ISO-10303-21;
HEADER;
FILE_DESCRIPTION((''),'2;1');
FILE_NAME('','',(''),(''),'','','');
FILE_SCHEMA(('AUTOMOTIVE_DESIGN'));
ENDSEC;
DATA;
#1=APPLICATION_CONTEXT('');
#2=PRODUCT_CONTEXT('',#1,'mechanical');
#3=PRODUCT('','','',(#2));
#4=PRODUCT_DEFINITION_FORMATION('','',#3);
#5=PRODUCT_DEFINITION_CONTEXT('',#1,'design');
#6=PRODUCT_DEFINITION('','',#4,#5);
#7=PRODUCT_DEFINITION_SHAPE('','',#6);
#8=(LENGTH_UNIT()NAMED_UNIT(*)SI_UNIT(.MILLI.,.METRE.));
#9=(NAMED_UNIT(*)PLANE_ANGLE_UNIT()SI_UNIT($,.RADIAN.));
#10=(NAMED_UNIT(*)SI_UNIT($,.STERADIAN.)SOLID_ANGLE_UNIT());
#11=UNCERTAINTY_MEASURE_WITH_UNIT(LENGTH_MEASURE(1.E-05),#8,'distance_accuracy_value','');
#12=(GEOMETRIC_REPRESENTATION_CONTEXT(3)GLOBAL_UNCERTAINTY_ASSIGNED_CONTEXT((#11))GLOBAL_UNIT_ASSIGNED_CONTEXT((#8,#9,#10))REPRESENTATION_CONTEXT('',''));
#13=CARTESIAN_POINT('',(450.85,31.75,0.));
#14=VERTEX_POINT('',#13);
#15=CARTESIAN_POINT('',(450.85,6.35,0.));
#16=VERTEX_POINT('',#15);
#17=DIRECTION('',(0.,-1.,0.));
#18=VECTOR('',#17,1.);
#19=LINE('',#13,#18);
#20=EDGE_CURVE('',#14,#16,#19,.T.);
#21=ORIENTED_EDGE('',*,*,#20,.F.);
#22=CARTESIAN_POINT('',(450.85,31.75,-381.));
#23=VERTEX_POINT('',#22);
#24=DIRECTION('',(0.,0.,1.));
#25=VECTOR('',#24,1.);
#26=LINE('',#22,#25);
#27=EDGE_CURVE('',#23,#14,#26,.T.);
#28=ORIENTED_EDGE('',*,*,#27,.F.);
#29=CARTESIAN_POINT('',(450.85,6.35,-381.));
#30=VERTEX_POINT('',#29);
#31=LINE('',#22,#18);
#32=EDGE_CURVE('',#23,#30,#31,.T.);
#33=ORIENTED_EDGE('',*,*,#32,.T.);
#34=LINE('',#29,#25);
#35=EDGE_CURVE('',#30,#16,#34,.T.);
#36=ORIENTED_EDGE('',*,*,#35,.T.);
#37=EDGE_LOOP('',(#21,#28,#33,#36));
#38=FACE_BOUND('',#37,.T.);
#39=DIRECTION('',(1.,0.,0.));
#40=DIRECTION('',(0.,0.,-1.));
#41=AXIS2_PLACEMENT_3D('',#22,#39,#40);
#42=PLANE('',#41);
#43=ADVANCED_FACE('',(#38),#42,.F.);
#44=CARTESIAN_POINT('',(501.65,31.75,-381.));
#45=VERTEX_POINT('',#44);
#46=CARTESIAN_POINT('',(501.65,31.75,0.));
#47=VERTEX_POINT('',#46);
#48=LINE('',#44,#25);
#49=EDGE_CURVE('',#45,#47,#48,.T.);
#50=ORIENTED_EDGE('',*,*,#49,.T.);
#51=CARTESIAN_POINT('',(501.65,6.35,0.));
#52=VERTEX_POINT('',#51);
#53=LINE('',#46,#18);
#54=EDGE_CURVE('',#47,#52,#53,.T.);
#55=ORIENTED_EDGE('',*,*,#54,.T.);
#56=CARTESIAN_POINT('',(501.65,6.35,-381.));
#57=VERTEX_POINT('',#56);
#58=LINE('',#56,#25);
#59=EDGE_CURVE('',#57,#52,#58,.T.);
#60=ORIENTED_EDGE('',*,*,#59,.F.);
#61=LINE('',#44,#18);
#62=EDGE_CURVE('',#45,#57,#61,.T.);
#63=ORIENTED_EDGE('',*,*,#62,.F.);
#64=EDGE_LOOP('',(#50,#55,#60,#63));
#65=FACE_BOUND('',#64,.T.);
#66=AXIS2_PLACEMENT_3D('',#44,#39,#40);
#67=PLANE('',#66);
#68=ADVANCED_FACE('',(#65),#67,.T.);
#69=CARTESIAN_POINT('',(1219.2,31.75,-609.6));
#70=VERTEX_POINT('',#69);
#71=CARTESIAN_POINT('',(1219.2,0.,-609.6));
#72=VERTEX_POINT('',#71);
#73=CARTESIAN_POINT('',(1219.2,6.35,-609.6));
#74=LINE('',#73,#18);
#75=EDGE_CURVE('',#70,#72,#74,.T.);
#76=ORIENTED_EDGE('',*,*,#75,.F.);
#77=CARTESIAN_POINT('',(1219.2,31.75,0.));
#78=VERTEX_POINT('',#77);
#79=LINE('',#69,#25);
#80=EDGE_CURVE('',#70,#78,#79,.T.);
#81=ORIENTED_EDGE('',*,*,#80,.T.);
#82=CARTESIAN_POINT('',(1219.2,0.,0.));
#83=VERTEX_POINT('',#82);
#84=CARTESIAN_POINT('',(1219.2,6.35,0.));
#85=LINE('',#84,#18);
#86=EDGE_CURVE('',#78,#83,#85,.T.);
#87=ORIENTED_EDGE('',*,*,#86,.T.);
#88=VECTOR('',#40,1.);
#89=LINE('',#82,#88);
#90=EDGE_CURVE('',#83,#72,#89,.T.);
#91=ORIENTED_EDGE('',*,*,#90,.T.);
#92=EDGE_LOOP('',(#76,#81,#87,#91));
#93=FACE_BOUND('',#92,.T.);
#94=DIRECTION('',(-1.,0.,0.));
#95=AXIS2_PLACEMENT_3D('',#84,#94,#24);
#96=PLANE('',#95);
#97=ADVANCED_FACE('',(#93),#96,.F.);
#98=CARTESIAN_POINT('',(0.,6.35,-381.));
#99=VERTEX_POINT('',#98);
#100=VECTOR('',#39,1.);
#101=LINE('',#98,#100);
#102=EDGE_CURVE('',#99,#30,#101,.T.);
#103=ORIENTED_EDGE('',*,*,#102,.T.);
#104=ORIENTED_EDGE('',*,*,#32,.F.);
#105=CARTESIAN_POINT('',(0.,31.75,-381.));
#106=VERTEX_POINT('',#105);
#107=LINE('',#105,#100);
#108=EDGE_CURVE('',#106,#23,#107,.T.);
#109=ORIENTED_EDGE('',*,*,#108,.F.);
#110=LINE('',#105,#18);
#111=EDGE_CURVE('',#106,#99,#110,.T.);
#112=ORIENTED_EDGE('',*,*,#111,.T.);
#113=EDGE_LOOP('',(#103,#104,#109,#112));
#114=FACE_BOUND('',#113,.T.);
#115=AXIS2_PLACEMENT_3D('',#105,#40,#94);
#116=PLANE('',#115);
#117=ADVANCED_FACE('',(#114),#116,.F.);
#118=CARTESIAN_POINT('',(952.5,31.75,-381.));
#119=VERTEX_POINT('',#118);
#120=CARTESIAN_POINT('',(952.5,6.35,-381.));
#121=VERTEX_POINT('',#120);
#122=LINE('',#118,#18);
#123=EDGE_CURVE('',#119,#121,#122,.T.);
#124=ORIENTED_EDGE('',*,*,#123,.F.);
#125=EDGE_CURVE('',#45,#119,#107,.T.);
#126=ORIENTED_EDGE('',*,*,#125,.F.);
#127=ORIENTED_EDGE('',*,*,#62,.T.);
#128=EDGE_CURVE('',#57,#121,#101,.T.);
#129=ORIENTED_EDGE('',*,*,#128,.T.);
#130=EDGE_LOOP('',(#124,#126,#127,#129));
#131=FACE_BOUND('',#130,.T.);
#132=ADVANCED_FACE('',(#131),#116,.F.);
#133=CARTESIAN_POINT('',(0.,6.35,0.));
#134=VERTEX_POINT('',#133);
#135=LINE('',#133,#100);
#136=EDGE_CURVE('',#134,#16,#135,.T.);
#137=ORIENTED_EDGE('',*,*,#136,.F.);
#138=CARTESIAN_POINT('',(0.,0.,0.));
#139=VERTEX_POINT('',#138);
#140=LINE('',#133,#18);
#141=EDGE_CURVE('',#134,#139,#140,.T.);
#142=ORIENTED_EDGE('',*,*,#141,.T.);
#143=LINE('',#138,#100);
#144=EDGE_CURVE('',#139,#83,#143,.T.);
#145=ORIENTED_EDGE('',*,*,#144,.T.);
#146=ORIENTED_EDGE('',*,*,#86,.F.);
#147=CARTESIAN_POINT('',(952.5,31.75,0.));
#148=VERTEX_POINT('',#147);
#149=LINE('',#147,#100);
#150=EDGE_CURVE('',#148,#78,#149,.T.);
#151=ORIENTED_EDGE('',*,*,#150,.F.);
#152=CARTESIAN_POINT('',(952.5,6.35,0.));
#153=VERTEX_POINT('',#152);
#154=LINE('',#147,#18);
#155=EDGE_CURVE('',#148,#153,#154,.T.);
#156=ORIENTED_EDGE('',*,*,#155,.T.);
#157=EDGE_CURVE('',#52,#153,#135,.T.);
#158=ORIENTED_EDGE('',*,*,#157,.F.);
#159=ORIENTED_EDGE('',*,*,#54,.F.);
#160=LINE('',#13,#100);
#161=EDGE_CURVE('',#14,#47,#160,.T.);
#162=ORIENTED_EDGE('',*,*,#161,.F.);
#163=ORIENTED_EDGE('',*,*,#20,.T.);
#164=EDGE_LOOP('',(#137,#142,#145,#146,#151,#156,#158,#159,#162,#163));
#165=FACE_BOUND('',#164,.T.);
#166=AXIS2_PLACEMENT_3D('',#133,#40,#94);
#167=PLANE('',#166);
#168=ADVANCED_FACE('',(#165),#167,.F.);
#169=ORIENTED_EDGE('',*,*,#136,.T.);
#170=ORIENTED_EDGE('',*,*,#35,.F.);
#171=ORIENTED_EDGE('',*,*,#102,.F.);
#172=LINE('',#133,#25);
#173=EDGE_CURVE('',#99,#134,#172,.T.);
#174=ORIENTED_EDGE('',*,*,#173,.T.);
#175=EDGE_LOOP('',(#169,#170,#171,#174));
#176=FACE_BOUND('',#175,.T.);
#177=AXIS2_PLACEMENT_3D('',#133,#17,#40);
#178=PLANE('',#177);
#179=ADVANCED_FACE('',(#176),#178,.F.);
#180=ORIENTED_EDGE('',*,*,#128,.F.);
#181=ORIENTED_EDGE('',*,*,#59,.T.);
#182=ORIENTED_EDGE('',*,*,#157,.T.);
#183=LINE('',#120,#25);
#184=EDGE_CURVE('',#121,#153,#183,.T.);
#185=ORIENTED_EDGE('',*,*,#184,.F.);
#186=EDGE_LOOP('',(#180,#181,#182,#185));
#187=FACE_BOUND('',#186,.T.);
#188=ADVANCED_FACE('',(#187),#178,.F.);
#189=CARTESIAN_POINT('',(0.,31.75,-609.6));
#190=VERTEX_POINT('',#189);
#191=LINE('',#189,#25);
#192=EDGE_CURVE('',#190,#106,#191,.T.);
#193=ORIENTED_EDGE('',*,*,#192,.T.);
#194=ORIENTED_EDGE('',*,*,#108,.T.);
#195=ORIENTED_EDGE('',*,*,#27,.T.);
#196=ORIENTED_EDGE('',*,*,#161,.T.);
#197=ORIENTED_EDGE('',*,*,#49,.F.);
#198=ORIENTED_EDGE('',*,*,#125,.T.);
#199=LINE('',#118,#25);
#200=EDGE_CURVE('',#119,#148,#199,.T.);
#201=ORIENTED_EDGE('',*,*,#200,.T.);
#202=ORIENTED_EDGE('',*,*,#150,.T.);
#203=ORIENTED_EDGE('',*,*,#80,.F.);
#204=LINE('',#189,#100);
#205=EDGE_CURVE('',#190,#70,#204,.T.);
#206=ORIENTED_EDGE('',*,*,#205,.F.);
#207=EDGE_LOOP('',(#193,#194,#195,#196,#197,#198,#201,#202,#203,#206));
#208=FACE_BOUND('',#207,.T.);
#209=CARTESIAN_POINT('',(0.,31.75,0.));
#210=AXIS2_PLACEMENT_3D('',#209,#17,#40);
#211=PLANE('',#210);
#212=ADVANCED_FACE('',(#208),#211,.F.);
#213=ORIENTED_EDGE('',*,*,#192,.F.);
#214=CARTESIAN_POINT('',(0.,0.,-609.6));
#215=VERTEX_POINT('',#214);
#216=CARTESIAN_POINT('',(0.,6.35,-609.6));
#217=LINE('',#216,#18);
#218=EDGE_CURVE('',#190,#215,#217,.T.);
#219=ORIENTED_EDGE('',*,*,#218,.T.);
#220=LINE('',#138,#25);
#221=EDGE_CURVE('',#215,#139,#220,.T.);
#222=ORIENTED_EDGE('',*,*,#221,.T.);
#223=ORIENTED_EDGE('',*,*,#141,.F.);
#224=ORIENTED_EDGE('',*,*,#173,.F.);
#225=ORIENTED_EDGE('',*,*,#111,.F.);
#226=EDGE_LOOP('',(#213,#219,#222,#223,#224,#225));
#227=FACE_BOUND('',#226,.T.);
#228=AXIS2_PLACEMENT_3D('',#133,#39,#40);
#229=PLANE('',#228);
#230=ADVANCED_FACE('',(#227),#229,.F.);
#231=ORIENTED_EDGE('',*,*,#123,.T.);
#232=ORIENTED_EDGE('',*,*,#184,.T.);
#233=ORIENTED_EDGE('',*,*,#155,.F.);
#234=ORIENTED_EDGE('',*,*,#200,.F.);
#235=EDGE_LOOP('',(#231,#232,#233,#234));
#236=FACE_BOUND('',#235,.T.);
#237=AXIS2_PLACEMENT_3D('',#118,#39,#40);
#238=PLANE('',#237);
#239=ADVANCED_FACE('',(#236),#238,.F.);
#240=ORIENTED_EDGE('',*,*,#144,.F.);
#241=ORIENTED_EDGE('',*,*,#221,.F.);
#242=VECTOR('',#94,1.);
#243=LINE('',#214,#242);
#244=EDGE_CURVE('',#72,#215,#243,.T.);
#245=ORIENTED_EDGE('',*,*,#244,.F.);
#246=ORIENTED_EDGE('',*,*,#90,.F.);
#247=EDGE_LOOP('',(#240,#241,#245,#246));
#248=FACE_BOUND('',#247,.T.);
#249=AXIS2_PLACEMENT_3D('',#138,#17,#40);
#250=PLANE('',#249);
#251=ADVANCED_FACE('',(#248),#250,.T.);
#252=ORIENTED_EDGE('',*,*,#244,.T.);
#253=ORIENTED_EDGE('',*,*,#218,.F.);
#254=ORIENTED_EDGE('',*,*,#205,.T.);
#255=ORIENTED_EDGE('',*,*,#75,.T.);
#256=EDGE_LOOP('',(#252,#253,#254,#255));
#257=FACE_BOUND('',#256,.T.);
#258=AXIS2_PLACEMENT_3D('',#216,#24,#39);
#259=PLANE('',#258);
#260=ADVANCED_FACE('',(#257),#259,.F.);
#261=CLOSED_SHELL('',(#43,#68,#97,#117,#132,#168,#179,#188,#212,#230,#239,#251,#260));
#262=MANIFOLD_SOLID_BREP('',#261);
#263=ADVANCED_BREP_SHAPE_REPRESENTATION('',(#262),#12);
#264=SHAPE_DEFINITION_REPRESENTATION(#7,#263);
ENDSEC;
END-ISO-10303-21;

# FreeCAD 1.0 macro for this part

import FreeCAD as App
import Part
import Sketcher
from FreeCAD import Vector
Q = App.Units.Quantity


def add_polygon(sketch, points):
    """Adds a closed chain of lines whose ends are joined by coincident constraints."""
    first, n = sketch.GeometryCount, len(points)
    for a, b in zip(points, points[1:] + points[:1]):
        sketch.addGeometry(Part.LineSegment(App.Vector(*a, 0), App.Vector(*b, 0)), False)
    for i in range(n):
        sketch.addConstraint(Sketcher.Constraint("Coincident", first + i, 2, first + (i + 1) % n, 1))

doc = App.newDocument("Part")
params = doc.addObject("Spreadsheet::Sheet", "Params")
for row, (alias, value) in enumerate([
    ("sketch1_width", "48 in"),
    ("sketch1_height", "24 in"),
    ("pad1_length", "0.25 in"),
    ("sketch2_width", "48 in"),
    ("sketch2_width2", "2 in"),
    ("sketch2_height", "9 in"),
    ("sketch2_height2", "15 in"),
    ("sketch2_width3", "10.5 in"),
    ("pad2_length", "1 in"),
], start=1):
    params.set(f"A{row}", alias)
    params.set(f"B{row}", "=" + value)
    params.setAlias(f"B{row}", alias)

body = doc.addObject("PartDesign::Body", "Body")

sketch1 = body.newObject("Sketcher::SketchObject", "Sketch")
sketch1.AttachmentSupport = (doc.getObject("XZ_Plane"), [""])
sketch1.MapMode = "FlatFace"
add_polygon(sketch1, [(0, -610), (0, 0), (1219, 0), (1219, -610)])
sketch1.addConstraint([
    Sketcher.Constraint("Vertical", 0),
    Sketcher.Constraint("Horizontal", 1),
    Sketcher.Constraint("Vertical", 2),
    Sketcher.Constraint("Horizontal", 3),
    Sketcher.Constraint("Coincident", 0, 2, -1, 1),
    Sketcher.Constraint("DistanceX", 1, 1, 1, 2, Q("48 in")),
    Sketcher.Constraint("DistanceY", 0, 1, 0, 2, Q("24 in")),
])
sketch1.setExpression("Constraints[9]", "Params.sketch1_width")
sketch1.setExpression("Constraints[10]", "Params.sketch1_height")
pad1 = body.newObject("PartDesign::Pad", "Pad")
pad1.Profile = sketch1
pad1.setExpression("Length", "Params.pad1_length")
pad1.Reversed = True

sketch2 = body.newObject("Sketcher::SketchObject", "Sketch001")
sketch2.AttachmentSupport = (doc.getObject("XZ_Plane"), [""])
sketch2.MapMode = "FlatFace"
sketch2.AttachmentOffset = App.Placement(Vector(0, 0, -0.25 * 25.4), App.Rotation())
add_polygon(sketch2, [(1219, -610), (0, -610), (0, -381), (451, -381), (451, 0), (502, 0), (502, -381), (952, -381), (952, 0), (1219, 0)])
sketch2.addConstraint([
    Sketcher.Constraint("Horizontal", 0),
    Sketcher.Constraint("Vertical", 1),
    Sketcher.Constraint("Horizontal", 2),
    Sketcher.Constraint("Vertical", 3),
    Sketcher.Constraint("Horizontal", 4),
    Sketcher.Constraint("Vertical", 5),
    Sketcher.Constraint("Horizontal", 6),
    Sketcher.Constraint("Vertical", 7),
    Sketcher.Constraint("Horizontal", 8),
    Sketcher.Constraint("Vertical", 9),
    Sketcher.Constraint("PointOnObject", 0, 2, -2),
    Sketcher.Constraint("PointOnObject", 3, 2, -1),
    Sketcher.Constraint("PointOnObject", 7, 2, -1),
    Sketcher.Constraint("Horizontal", 2, 2, 5, 2),
    Sketcher.Constraint("Equal", 2, 6),
    Sketcher.Constraint("DistanceX", 0, 2, 0, 1, Q("48 in")),
    Sketcher.Constraint("DistanceX", 4, 1, 4, 2, Q("2 in")),
    Sketcher.Constraint("DistanceY", 1, 1, 1, 2, Q("9 in")),
    Sketcher.Constraint("DistanceY", 3, 1, 3, 2, Q("15 in")),
    Sketcher.Constraint("DistanceX", 8, 1, 8, 2, Q("10.5 in")),
])
sketch2.setExpression("Constraints[25]", "Params.sketch2_width")
sketch2.setExpression("Constraints[26]", "Params.sketch2_width2")
sketch2.setExpression("Constraints[27]", "Params.sketch2_height")
sketch2.setExpression("Constraints[28]", "Params.sketch2_height2")
sketch2.setExpression("Constraints[29]", "Params.sketch2_width3")
pad2 = body.newObject("PartDesign::Pad", "Pad001")
pad2.Profile = sketch2
pad2.setExpression("Length", "Params.pad2_length")
pad2.Reversed = True

doc.recompute()
